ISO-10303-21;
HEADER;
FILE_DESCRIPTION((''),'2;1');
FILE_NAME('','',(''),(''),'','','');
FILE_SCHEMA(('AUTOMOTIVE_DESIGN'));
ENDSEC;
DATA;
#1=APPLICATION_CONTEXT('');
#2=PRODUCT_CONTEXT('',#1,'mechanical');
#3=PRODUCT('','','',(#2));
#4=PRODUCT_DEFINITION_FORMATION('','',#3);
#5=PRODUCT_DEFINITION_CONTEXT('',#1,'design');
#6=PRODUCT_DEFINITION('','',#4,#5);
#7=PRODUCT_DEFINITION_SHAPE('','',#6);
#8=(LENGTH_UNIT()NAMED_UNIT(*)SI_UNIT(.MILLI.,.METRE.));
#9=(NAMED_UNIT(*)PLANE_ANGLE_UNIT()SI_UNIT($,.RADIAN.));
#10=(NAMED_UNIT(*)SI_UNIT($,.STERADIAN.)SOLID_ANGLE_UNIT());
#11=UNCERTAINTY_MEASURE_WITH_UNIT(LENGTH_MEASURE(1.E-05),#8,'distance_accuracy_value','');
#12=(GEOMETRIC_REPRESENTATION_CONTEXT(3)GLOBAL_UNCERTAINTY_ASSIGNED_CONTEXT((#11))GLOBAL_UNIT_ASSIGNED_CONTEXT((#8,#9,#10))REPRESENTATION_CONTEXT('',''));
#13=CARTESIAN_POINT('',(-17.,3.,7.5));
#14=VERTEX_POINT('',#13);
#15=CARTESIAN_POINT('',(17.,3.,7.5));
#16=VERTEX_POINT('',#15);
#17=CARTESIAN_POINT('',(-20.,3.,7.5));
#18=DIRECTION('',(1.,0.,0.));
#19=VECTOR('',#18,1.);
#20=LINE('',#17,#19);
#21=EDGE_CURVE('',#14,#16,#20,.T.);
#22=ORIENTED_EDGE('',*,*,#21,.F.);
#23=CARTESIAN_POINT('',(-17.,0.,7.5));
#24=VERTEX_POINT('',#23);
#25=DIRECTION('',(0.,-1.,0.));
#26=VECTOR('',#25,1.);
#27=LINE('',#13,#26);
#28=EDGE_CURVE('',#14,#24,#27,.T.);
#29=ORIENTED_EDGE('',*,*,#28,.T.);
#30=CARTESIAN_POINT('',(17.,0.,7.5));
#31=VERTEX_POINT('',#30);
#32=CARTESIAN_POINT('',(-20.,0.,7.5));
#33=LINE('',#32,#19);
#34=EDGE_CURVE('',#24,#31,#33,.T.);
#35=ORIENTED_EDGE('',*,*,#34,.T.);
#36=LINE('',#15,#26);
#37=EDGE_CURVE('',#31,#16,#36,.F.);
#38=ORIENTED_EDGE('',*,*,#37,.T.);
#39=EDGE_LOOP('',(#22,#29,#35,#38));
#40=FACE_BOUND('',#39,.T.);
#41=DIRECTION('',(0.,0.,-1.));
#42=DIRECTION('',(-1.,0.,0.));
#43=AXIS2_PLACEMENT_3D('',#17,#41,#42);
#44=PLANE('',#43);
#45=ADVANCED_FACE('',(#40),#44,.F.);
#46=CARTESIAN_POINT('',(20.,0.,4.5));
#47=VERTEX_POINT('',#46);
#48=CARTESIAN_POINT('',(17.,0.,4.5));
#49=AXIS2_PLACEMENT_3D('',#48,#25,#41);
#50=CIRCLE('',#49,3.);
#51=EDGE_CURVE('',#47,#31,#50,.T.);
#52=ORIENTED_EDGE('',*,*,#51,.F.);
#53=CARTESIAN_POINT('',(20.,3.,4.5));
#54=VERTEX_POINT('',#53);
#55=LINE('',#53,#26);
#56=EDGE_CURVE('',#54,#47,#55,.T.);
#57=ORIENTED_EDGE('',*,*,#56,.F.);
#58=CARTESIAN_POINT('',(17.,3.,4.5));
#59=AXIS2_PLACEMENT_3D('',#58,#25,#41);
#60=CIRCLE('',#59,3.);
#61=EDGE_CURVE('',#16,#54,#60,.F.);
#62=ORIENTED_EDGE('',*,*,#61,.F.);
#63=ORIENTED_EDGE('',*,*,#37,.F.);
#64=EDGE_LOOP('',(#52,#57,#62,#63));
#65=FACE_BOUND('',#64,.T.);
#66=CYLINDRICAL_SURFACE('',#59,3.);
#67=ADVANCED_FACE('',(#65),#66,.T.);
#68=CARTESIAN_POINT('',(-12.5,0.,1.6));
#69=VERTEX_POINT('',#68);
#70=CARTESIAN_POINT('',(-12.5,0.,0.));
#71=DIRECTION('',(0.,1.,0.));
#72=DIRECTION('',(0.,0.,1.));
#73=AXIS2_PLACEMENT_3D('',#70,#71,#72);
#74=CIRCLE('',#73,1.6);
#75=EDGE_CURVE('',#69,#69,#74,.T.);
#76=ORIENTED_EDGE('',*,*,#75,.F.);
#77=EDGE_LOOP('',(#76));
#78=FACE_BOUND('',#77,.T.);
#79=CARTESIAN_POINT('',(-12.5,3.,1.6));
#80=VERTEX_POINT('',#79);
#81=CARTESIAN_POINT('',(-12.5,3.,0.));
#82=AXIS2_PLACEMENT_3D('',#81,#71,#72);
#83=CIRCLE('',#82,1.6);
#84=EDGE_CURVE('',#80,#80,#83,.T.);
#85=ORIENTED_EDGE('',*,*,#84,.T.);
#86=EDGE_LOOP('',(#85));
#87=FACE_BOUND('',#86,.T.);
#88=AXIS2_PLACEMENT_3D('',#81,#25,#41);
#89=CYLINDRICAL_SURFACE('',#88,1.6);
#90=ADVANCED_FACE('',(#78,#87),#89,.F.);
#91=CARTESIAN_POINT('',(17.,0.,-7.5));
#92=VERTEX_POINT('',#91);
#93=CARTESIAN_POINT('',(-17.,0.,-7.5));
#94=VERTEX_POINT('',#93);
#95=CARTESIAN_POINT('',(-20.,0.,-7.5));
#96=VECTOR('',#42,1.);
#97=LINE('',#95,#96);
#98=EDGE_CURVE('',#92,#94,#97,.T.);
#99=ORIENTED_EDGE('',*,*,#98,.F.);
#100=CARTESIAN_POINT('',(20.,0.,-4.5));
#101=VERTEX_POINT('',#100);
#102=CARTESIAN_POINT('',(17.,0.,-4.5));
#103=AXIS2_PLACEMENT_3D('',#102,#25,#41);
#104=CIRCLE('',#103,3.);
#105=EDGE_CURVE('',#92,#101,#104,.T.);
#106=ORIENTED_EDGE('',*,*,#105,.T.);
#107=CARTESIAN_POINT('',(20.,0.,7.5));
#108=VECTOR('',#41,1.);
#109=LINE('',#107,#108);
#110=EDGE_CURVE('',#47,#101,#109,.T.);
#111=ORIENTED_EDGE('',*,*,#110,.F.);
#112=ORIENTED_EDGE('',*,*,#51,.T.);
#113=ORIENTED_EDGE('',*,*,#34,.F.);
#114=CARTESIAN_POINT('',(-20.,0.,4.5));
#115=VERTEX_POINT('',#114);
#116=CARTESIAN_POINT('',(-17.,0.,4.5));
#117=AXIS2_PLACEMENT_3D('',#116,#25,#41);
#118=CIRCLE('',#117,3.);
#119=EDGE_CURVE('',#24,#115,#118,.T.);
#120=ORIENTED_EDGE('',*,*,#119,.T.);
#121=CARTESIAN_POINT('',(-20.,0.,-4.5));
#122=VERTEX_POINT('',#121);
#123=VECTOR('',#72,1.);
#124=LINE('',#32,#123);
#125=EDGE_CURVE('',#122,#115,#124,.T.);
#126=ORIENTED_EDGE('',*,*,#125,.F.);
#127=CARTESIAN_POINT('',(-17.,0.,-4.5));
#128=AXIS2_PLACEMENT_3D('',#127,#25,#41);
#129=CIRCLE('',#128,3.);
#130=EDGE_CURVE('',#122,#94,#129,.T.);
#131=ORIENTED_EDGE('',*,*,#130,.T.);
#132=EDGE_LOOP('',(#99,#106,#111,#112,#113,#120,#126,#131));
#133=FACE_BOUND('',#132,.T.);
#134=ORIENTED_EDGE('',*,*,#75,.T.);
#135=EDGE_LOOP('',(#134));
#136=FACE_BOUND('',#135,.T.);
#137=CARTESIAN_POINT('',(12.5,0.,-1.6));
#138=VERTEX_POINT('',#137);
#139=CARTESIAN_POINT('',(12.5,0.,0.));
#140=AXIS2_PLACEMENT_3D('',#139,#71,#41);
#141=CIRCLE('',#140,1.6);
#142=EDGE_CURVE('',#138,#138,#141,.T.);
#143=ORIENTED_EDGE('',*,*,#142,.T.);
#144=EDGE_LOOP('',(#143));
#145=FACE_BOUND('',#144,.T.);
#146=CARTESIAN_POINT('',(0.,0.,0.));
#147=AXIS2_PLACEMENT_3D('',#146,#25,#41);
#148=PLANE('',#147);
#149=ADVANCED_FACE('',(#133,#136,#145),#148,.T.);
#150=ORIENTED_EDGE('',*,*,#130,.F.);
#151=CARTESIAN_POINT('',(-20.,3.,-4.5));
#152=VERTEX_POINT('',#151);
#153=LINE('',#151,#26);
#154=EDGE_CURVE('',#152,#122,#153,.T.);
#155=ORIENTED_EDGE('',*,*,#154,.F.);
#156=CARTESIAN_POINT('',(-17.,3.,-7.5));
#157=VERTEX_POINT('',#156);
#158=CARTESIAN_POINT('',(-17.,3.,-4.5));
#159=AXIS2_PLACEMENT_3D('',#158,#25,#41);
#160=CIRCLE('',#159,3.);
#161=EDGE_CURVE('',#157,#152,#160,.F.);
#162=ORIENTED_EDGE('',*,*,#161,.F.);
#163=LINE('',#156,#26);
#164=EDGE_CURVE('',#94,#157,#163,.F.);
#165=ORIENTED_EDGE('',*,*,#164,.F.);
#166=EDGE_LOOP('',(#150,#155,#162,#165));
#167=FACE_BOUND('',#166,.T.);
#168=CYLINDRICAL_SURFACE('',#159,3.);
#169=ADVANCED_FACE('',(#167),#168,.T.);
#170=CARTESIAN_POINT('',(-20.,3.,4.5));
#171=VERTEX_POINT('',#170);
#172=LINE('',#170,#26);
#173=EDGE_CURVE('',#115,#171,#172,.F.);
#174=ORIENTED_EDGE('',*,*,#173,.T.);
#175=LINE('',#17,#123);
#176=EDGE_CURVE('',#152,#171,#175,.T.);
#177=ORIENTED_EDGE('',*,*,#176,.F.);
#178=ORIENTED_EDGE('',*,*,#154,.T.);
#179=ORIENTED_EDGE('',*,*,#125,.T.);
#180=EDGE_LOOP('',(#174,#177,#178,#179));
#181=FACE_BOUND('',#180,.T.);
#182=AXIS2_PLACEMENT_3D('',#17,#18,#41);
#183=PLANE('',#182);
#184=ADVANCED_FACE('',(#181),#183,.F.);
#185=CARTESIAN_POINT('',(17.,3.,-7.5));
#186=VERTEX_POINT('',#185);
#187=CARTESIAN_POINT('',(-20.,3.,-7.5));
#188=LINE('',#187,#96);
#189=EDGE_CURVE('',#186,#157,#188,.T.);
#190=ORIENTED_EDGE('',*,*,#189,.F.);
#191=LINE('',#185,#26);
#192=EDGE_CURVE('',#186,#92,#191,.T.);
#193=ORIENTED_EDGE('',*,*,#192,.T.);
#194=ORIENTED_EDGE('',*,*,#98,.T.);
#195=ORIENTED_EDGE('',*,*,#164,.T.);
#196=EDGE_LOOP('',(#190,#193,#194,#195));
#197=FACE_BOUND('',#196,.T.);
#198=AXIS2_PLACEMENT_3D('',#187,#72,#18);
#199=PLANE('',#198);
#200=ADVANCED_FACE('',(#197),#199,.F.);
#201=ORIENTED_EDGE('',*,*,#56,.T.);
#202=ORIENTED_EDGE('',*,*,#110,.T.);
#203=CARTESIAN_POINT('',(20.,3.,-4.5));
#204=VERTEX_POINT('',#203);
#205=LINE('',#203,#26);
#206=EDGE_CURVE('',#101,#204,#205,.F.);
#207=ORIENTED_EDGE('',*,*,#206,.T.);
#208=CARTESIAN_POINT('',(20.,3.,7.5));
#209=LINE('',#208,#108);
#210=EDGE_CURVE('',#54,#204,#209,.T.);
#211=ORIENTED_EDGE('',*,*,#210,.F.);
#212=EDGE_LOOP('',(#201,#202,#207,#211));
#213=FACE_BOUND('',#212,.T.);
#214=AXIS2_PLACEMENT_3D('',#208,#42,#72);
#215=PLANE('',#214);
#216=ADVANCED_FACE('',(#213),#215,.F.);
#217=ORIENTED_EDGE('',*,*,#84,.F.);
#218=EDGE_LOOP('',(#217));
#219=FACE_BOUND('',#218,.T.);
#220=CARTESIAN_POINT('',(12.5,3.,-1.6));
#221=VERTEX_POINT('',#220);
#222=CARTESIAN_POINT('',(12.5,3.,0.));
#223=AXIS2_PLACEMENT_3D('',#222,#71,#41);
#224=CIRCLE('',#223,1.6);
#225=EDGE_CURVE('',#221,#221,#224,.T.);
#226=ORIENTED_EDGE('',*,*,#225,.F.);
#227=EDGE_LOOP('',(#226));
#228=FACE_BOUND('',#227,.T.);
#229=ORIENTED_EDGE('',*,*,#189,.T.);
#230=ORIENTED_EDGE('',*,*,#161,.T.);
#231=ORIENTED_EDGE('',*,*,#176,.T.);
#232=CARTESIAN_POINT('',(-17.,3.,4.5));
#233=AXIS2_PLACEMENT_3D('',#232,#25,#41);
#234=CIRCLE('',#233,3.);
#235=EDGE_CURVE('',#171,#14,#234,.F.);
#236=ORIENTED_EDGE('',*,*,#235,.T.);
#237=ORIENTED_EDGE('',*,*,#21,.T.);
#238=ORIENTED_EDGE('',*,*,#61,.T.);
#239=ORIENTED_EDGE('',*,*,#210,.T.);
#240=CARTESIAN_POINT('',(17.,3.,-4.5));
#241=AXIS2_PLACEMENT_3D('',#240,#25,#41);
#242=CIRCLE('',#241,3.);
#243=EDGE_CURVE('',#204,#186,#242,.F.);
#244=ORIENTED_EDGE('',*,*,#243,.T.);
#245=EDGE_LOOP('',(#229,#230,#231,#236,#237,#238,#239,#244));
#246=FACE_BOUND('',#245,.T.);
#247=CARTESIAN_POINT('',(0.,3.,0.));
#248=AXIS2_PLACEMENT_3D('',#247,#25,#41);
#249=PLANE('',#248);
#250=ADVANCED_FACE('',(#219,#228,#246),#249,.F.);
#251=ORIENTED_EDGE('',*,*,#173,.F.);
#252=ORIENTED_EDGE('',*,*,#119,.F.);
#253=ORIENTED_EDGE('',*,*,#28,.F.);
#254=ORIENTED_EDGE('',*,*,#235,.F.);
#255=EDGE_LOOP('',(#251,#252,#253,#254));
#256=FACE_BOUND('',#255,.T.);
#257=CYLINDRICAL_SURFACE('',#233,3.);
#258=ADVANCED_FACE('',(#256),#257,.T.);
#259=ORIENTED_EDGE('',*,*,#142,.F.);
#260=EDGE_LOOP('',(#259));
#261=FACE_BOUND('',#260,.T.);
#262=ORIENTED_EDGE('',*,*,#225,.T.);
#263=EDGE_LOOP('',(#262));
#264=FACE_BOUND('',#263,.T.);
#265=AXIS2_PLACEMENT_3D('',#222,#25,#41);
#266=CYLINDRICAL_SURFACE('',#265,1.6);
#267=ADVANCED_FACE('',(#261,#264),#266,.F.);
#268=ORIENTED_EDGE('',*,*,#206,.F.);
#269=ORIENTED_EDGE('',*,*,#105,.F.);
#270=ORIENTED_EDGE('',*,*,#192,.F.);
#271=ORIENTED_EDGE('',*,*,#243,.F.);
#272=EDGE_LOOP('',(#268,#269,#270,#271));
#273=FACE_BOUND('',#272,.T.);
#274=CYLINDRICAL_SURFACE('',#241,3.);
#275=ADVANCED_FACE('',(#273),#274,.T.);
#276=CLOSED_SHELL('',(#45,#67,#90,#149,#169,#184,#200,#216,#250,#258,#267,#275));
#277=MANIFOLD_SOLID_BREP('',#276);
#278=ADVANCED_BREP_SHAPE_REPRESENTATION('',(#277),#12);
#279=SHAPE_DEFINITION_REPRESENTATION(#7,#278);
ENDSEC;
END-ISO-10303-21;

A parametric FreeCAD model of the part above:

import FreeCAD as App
import Part
import Sketcher
from FreeCAD import Vector
Q = App.Units.Quantity


def edges_at(feature, points):
    """Names of the edges that pass closest to the given points."""
    edges = feature.Shape.Edges
    near = lambda p: min(range(len(edges)), key=lambda i: edges[i].distToShape(Part.Vertex(*p))[0])
    return sorted({f"Edge{near(p) + 1}" for p in points})


def add_polygon(sketch, points):
    """Adds a closed chain of lines whose ends are joined by coincident constraints."""
    first, n = sketch.GeometryCount, len(points)
    for a, b in zip(points, points[1:] + points[:1]):
        sketch.addGeometry(Part.LineSegment(App.Vector(*a, 0), App.Vector(*b, 0)), False)
    for i in range(n):
        sketch.addConstraint(Sketcher.Constraint("Coincident", first + i, 2, first + (i + 1) % n, 1))

doc = App.newDocument("Part")
params = doc.addObject("Spreadsheet::Sheet", "Params")
for row, (alias, value) in enumerate([
    ("sketch1_diameter", "3.2 mm"),
    ("sketch1_width", "40 mm"),
    ("sketch1_height", "15 mm"),
    ("pad1_length", "3 mm"),
    ("fillet_radius", "3 mm"),
], start=1):
    params.set(f"A{row}", alias)
    params.set(f"B{row}", "=" + value)
    params.setAlias(f"B{row}", alias)

body = doc.addObject("PartDesign::Body", "Body")

# Sketch on XZ plane
sketch1 = doc.addObject("Sketcher::SketchObject", "Sketch")
body.addObject(sketch1)
sketch1.AttachmentSupport = (doc.XZ_Plane, [""])
sketch1.MapMode = "FlatFace"
add_polygon(sketch1, [(-20, -7.5), (-20, 7.5), (20, 7.5), (20, -7.5)])  # lines 0-3
sketch1.addGeometry(Part.Circle(Vector(-12.5, 0, 0), Vector(0, 0, 1), 1.6), False)  # 4
sketch1.addGeometry(Part.Circle(Vector(12.5, 0, 0), Vector(0, 0, 1), 1.6), False)  # 5
sketch1.addConstraint(Sketcher.Constraint("Vertical", 0))
sketch1.addConstraint(Sketcher.Constraint("Horizontal", 1))
sketch1.addConstraint(Sketcher.Constraint("Vertical", 2))
sketch1.addConstraint(Sketcher.Constraint("Horizontal", 3))
sketch1.addConstraint(Sketcher.Constraint("Equal", 4, 5))
sketch1.addConstraint(Sketcher.Constraint("Symmetric", 4, 3, 5, 3, -1, 1))
sketch1.addConstraint(Sketcher.Constraint("Symmetric", 0, 2, 2, 2, -1, 1))
sketch1.addConstraint(Sketcher.Constraint("PointOnObject", 4, 3, -1))
sketch1.addConstraint(Sketcher.Constraint("Diameter", 4, Q("3.2 mm")))
sketch1.addConstraint(Sketcher.Constraint("DistanceX", 1, 1, 1, 2, Q("40 mm")))
sketch1.addConstraint(Sketcher.Constraint("DistanceY", 0, 1, 0, 2, Q("15 mm")))
sketch1.addConstraint(Sketcher.Constraint("DistanceX", 4, 3, 5, 3, Q("25 mm")))
sketch1.setExpression("Constraints[12]", "Params.sketch1_diameter")
sketch1.setExpression("Constraints[13]", "Params.sketch1_width")
sketch1.setExpression("Constraints[14]", "Params.sketch1_height")
pad1 = doc.addObject("PartDesign::Pad", "Pad")
body.addObject(pad1)
pad1.Profile = sketch1
pad1.setExpression("Length", "Params.pad1_length")
pad1.Reversed = True
doc.recompute()

fillet = doc.addObject("PartDesign::Fillet", "Fillet")
body.addObject(fillet)
fillet.Base = (pad1, edges_at(pad1, [
    (20, 1.5, 7.5),
    (-20, 1.5, 7.5),
    (-20, 1.5, -7.5),
    (20, 1.5, -7.5),
]))
fillet.setExpression("Radius", "Params.fillet_radius")

doc.recompute()
